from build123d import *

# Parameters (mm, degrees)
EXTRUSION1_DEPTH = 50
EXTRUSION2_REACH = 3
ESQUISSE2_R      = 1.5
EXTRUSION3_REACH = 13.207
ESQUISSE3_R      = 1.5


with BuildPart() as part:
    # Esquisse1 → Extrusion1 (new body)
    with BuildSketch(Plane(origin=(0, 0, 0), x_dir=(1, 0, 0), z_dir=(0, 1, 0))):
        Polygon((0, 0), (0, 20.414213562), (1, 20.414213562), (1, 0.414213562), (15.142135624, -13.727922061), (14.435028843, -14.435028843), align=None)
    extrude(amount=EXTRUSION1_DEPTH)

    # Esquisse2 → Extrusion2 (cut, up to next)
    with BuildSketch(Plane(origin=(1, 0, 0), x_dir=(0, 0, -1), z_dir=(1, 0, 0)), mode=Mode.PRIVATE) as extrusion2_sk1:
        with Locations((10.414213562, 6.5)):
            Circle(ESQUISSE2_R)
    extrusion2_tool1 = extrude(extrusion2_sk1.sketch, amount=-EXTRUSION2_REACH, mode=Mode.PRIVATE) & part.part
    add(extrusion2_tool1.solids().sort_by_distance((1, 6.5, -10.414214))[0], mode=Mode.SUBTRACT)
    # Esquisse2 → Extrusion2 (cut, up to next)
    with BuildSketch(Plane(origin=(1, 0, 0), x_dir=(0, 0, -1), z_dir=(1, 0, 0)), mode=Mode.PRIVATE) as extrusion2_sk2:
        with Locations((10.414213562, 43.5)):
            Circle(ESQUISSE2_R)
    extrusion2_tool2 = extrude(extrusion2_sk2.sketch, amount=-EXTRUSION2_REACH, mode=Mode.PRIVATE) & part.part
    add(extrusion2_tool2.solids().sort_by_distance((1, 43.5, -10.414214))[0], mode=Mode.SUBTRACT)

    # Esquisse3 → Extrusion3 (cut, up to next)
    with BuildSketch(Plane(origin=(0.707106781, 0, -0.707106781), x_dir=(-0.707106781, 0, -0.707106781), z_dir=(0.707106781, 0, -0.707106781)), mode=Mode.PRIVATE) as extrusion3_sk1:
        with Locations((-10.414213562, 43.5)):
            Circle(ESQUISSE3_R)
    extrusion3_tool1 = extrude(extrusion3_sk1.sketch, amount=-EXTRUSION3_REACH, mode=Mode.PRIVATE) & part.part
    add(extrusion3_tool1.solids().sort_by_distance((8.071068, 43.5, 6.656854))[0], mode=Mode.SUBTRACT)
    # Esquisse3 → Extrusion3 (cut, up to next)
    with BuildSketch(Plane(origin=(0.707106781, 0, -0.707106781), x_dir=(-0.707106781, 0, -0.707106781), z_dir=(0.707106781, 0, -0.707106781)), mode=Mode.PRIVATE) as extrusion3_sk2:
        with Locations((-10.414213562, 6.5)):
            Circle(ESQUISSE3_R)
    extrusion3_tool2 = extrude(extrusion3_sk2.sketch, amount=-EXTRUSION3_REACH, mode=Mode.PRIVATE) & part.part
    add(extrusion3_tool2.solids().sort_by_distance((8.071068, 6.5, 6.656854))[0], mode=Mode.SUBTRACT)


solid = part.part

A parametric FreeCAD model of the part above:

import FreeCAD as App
import Part
import Sketcher

V = App.Vector
Q = App.Units.Quantity


def add_polygon(sketch, points):
    """Adds a closed chain of lines whose ends are joined by coincident constraints."""
    first, n = sketch.GeometryCount, len(points)
    for a, b in zip(points, points[1:] + points[:1]):
        sketch.addGeometry(Part.LineSegment(App.Vector(*a, 0), App.Vector(*b, 0)), False)
    for i in range(n):
        sketch.addConstraint(Sketcher.Constraint("Coincident", first + i, 2, first + (i + 1) % n, 1))

doc = App.newDocument("Part")
body = doc.addObject("PartDesign::Body", "Body")

# Sketch on XZ plane
sketch1 = doc.addObject("Sketcher::SketchObject", "Sketch")
body.addObject(sketch1)
sketch1.AttachmentSupport = (doc.XZ_Plane, [""])
sketch1.MapMode = "FlatFace"
add_polygon(sketch1, [(0, -20.4), (0, 0), (14.4, 14.4), (15.1, 13.7), (1, -0.4), (1, -20.4)])  # lines 0-5
sketch1.addConstraint(Sketcher.Constraint("Vertical", 0))
sketch1.addConstraint(Sketcher.Constraint("Vertical", 4))
sketch1.addConstraint(Sketcher.Constraint("Horizontal", 5))
sketch1.addConstraint(Sketcher.Constraint("Coincident", 0, 2, -1, 1))
sketch1.addConstraint(Sketcher.Constraint("Perpendicular", 1, 2))
sketch1.addConstraint(Sketcher.Constraint("Perpendicular", 2, 3))
sketch1.addConstraint(Sketcher.Constraint("DistanceX", 5, 2, 5, 1, Q("1 mm")))
sketch1.addConstraint(Sketcher.Constraint("DistanceY", 4, 2, 4, 1, Q("20 mm")))
sketch1.addConstraint(Sketcher.Constraint("Angle", 1, Q("45 deg")))
sketch1.addConstraint(Sketcher.Constraint("Distance", 2, Q("1 mm")))
sketch1.addConstraint(Sketcher.Constraint("Distance", 3, Q("20 mm")))
pad1 = doc.addObject("PartDesign::Pad", "Pad")
body.addObject(pad1)
pad1.Profile = sketch1
pad1.Length = 50
pad1.Reversed = True

# Sketch on YZ plane
sketch2 = doc.addObject("Sketcher::SketchObject", "Sketch001")
body.addObject(sketch2)
sketch2.AttachmentSupport = (doc.YZ_Plane, [""])
sketch2.MapMode = "FlatFace"
sketch2.AttachmentOffset = App.Placement(V(0, 0, 1), App.Rotation())
sketch2.addGeometry(Part.Circle(V(6.5, -10.4, 0), V(0, 0, 1), 1.5), False)
sketch2.addConstraint(Sketcher.Constraint("Diameter", 0, Q("3 mm")))
sketch2.addConstraint(Sketcher.Constraint("DistanceX", -1, 1, 0, 3, Q("6.5 mm")))
sketch2.addConstraint(Sketcher.Constraint("DistanceY", 0, 3, -1, 1, Q("10.414214 mm")))
pocket1 = doc.addObject("PartDesign::Pocket", "Pocket")
body.addObject(pocket1)
pocket1.Profile = sketch2
pocket1.Type = "UpToFirst"

# Sketch on YZ plane
sketch3 = doc.addObject("Sketcher::SketchObject", "Sketch002")
body.addObject(sketch3)
sketch3.AttachmentSupport = (doc.YZ_Plane, [""])
sketch3.MapMode = "FlatFace"
sketch3.AttachmentOffset = App.Placement(V(0, 0, 1), App.Rotation())
sketch3.addGeometry(Part.Circle(V(43.5, -10.4, 0), V(0, 0, 1), 1.5), False)
sketch3.addConstraint(Sketcher.Constraint("Diameter", 0, Q("3 mm")))
sketch3.addConstraint(Sketcher.Constraint("DistanceX", -1, 1, 0, 3, Q("43.5 mm")))
sketch3.addConstraint(Sketcher.Constraint("DistanceY", 0, 3, -1, 1, Q("10.414214 mm")))
pocket2 = doc.addObject("PartDesign::Pocket", "Pocket001")
body.addObject(pocket2)
pocket2.Profile = sketch3
pocket2.Type = "UpToFirst"

# Sketch on an angled plane
sketch4 = doc.addObject("Sketcher::SketchObject", "Sketch003")
body.addObject(sketch4)
sketch4.Placement = App.Placement(V(0.707107, 0, -0.707107), App.Rotation(V(-0.707106781, 0, -0.707106781), V(0, 0.999999999, 0), V(0.707106781, 0, -0.707106781), "ZXY"))
sketch4.addGeometry(Part.Circle(V(-10.4, 43.5, 0), V(0, 0, 1), 1.5), False)
sketch4.addConstraint(Sketcher.Constraint("Diameter", 0, Q("3 mm")))
sketch4.addConstraint(Sketcher.Constraint("DistanceY", -1, 1, 0, 3, Q("43.5 mm")))
sketch4.addConstraint(Sketcher.Constraint("DistanceX", 0, 3, -1, 1, Q("10.414214 mm")))
pocket3 = doc.addObject("PartDesign::Pocket", "Pocket002")
body.addObject(pocket3)
pocket3.Profile = sketch4
pocket3.Type = "UpToFirst"

# Sketch on an angled plane
sketch5 = doc.addObject("Sketcher::SketchObject", "Sketch004")
body.addObject(sketch5)
sketch5.Placement = App.Placement(V(0.707107, 0, -0.707107), App.Rotation(V(-0.707106781, 0, -0.707106781), V(0, 0.999999999, 0), V(0.707106781, 0, -0.707106781), "ZXY"))
sketch5.addGeometry(Part.Circle(V(-10.4, 6.5, 0), V(0, 0, 1), 1.5), False)
sketch5.addConstraint(Sketcher.Constraint("Diameter", 0, Q("3 mm")))
sketch5.addConstraint(Sketcher.Constraint("DistanceY", -1, 1, 0, 3, Q("6.5 mm")))
sketch5.addConstraint(Sketcher.Constraint("DistanceX", 0, 3, -1, 1, Q("10.414214 mm")))
pocket4 = doc.addObject("PartDesign::Pocket", "Pocket003")
body.addObject(pocket4)
pocket4.Profile = sketch5
pocket4.Type = "UpToFirst"

doc.recompute()
